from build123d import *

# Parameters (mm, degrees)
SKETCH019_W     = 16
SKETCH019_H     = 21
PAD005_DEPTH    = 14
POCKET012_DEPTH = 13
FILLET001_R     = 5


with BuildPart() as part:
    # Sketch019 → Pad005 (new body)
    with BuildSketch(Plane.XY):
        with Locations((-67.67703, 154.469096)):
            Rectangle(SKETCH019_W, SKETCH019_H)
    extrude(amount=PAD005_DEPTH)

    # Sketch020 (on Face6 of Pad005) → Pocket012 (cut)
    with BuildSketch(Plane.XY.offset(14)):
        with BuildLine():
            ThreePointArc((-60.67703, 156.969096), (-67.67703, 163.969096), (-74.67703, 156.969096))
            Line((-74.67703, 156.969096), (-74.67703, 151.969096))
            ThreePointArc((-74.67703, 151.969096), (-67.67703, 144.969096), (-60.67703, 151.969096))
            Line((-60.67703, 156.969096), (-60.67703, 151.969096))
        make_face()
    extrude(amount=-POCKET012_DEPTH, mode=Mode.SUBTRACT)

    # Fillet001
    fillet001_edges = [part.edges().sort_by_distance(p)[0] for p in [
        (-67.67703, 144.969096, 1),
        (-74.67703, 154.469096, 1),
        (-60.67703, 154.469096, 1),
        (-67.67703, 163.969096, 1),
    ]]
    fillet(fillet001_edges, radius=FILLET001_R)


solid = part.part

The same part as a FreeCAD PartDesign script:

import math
import FreeCAD as App
import Part
import Sketcher

V = App.Vector


def edges_at(feature, points):
    """Names of the edges that pass closest to the given points."""
    edges = feature.Shape.Edges
    near = lambda p: min(range(len(edges)), key=lambda i: edges[i].distToShape(Part.Vertex(*p))[0])
    return sorted({f"Edge{near(p) + 1}" for p in points})


def add_polygon(sketch, points):
    """Adds a closed chain of lines whose ends are joined by coincident constraints."""
    first, n = sketch.GeometryCount, len(points)
    for a, b in zip(points, points[1:] + points[:1]):
        sketch.addGeometry(Part.LineSegment(App.Vector(*a, 0), App.Vector(*b, 0)), False)
    for i in range(n):
        sketch.addConstraint(Sketcher.Constraint("Coincident", first + i, 2, first + (i + 1) % n, 1))

doc = App.newDocument("Part")
body = doc.addObject("PartDesign::Body", "Body")

# Sketch on XY plane
sketch1 = body.newObject("Sketcher::SketchObject", "Sketch")
sketch1.AttachmentSupport = (doc.getObject("XY_Plane"), [""])
sketch1.MapMode = "FlatFace"
add_polygon(sketch1, [(-76, 165), (-76, 144), (-60, 144), (-60, 165)])  # lines 0-3
sketch1.addConstraint([
    Sketcher.Constraint("Vertical", 0),
    Sketcher.Constraint("Horizontal", 1),
    Sketcher.Constraint("Vertical", 2),
    Sketcher.Constraint("Horizontal", 3),
    Sketcher.Constraint("DistanceX", 1, 1, 1, 2, 16.0),
    Sketcher.Constraint("DistanceY", 0, 2, 0, 1, 21.0),
    Sketcher.Constraint("DistanceX", 0, 2, -1, 1, 75.67703),
    Sketcher.Constraint("DistanceY", -1, 1, 0, 2, 143.969096),
])
pad1 = body.newObject("PartDesign::Pad", "Pad")
pad1.Profile = sketch1
pad1.Length = 14

# Sketch on XY plane
sketch2 = body.newObject("Sketcher::SketchObject", "Sketch001")
sketch2.AttachmentSupport = (doc.getObject("XY_Plane"), [""])
sketch2.MapMode = "FlatFace"
sketch2.AttachmentOffset = App.Placement(V(0, 0, 14), App.Rotation())
sketch2.addGeometry([
    Part.ArcOfCircle(Part.Circle(V(-68, 157, 0), V(0, 0, 1), 7), math.radians(0), math.radians(180)),
    Part.LineSegment(V(-75, 157, 0), V(-75, 152, 0)),
    Part.ArcOfCircle(Part.Circle(V(-68, 152, 0), V(0, 0, 1), 7), math.radians(180), math.radians(360)),
    Part.LineSegment(V(-61, 152, 0), V(-61, 157, 0)),
], False)
sketch2.addConstraint([
    Sketcher.Constraint("Tangent", 0, 2, 1, 1),
    Sketcher.Constraint("Tangent", 1, 2, 2, 1),
    Sketcher.Constraint("Tangent", 2, 2, 3, 1),
    Sketcher.Constraint("Tangent", 3, 2, 0, 1),
    Sketcher.Constraint("Vertical", 1),
    Sketcher.Constraint("Vertical", 3),
    Sketcher.Constraint("Radius", 0, 7.0),
    Sketcher.Constraint("DistanceY", 1, 2, 1, 1, 5.0),
    Sketcher.Constraint("DistanceX", 0, 3, -1, 1, 67.67703),
    Sketcher.Constraint("DistanceY", -1, 1, 0, 3, 156.969096),
])
pocket1 = body.newObject("PartDesign::Pocket", "Pocket")
pocket1.Profile = sketch2
pocket1.Length = 13
doc.recompute()

fillet = body.newObject("PartDesign::Fillet", "Fillet")
fillet.Base = (pocket1, edges_at(pocket1, [
    (-67.677, 144.969, 1),
    (-74.677, 154.469, 1),
    (-60.677, 154.469, 1),
    (-67.677, 163.969, 1),
]))
fillet.Radius = 5

doc.recompute()
